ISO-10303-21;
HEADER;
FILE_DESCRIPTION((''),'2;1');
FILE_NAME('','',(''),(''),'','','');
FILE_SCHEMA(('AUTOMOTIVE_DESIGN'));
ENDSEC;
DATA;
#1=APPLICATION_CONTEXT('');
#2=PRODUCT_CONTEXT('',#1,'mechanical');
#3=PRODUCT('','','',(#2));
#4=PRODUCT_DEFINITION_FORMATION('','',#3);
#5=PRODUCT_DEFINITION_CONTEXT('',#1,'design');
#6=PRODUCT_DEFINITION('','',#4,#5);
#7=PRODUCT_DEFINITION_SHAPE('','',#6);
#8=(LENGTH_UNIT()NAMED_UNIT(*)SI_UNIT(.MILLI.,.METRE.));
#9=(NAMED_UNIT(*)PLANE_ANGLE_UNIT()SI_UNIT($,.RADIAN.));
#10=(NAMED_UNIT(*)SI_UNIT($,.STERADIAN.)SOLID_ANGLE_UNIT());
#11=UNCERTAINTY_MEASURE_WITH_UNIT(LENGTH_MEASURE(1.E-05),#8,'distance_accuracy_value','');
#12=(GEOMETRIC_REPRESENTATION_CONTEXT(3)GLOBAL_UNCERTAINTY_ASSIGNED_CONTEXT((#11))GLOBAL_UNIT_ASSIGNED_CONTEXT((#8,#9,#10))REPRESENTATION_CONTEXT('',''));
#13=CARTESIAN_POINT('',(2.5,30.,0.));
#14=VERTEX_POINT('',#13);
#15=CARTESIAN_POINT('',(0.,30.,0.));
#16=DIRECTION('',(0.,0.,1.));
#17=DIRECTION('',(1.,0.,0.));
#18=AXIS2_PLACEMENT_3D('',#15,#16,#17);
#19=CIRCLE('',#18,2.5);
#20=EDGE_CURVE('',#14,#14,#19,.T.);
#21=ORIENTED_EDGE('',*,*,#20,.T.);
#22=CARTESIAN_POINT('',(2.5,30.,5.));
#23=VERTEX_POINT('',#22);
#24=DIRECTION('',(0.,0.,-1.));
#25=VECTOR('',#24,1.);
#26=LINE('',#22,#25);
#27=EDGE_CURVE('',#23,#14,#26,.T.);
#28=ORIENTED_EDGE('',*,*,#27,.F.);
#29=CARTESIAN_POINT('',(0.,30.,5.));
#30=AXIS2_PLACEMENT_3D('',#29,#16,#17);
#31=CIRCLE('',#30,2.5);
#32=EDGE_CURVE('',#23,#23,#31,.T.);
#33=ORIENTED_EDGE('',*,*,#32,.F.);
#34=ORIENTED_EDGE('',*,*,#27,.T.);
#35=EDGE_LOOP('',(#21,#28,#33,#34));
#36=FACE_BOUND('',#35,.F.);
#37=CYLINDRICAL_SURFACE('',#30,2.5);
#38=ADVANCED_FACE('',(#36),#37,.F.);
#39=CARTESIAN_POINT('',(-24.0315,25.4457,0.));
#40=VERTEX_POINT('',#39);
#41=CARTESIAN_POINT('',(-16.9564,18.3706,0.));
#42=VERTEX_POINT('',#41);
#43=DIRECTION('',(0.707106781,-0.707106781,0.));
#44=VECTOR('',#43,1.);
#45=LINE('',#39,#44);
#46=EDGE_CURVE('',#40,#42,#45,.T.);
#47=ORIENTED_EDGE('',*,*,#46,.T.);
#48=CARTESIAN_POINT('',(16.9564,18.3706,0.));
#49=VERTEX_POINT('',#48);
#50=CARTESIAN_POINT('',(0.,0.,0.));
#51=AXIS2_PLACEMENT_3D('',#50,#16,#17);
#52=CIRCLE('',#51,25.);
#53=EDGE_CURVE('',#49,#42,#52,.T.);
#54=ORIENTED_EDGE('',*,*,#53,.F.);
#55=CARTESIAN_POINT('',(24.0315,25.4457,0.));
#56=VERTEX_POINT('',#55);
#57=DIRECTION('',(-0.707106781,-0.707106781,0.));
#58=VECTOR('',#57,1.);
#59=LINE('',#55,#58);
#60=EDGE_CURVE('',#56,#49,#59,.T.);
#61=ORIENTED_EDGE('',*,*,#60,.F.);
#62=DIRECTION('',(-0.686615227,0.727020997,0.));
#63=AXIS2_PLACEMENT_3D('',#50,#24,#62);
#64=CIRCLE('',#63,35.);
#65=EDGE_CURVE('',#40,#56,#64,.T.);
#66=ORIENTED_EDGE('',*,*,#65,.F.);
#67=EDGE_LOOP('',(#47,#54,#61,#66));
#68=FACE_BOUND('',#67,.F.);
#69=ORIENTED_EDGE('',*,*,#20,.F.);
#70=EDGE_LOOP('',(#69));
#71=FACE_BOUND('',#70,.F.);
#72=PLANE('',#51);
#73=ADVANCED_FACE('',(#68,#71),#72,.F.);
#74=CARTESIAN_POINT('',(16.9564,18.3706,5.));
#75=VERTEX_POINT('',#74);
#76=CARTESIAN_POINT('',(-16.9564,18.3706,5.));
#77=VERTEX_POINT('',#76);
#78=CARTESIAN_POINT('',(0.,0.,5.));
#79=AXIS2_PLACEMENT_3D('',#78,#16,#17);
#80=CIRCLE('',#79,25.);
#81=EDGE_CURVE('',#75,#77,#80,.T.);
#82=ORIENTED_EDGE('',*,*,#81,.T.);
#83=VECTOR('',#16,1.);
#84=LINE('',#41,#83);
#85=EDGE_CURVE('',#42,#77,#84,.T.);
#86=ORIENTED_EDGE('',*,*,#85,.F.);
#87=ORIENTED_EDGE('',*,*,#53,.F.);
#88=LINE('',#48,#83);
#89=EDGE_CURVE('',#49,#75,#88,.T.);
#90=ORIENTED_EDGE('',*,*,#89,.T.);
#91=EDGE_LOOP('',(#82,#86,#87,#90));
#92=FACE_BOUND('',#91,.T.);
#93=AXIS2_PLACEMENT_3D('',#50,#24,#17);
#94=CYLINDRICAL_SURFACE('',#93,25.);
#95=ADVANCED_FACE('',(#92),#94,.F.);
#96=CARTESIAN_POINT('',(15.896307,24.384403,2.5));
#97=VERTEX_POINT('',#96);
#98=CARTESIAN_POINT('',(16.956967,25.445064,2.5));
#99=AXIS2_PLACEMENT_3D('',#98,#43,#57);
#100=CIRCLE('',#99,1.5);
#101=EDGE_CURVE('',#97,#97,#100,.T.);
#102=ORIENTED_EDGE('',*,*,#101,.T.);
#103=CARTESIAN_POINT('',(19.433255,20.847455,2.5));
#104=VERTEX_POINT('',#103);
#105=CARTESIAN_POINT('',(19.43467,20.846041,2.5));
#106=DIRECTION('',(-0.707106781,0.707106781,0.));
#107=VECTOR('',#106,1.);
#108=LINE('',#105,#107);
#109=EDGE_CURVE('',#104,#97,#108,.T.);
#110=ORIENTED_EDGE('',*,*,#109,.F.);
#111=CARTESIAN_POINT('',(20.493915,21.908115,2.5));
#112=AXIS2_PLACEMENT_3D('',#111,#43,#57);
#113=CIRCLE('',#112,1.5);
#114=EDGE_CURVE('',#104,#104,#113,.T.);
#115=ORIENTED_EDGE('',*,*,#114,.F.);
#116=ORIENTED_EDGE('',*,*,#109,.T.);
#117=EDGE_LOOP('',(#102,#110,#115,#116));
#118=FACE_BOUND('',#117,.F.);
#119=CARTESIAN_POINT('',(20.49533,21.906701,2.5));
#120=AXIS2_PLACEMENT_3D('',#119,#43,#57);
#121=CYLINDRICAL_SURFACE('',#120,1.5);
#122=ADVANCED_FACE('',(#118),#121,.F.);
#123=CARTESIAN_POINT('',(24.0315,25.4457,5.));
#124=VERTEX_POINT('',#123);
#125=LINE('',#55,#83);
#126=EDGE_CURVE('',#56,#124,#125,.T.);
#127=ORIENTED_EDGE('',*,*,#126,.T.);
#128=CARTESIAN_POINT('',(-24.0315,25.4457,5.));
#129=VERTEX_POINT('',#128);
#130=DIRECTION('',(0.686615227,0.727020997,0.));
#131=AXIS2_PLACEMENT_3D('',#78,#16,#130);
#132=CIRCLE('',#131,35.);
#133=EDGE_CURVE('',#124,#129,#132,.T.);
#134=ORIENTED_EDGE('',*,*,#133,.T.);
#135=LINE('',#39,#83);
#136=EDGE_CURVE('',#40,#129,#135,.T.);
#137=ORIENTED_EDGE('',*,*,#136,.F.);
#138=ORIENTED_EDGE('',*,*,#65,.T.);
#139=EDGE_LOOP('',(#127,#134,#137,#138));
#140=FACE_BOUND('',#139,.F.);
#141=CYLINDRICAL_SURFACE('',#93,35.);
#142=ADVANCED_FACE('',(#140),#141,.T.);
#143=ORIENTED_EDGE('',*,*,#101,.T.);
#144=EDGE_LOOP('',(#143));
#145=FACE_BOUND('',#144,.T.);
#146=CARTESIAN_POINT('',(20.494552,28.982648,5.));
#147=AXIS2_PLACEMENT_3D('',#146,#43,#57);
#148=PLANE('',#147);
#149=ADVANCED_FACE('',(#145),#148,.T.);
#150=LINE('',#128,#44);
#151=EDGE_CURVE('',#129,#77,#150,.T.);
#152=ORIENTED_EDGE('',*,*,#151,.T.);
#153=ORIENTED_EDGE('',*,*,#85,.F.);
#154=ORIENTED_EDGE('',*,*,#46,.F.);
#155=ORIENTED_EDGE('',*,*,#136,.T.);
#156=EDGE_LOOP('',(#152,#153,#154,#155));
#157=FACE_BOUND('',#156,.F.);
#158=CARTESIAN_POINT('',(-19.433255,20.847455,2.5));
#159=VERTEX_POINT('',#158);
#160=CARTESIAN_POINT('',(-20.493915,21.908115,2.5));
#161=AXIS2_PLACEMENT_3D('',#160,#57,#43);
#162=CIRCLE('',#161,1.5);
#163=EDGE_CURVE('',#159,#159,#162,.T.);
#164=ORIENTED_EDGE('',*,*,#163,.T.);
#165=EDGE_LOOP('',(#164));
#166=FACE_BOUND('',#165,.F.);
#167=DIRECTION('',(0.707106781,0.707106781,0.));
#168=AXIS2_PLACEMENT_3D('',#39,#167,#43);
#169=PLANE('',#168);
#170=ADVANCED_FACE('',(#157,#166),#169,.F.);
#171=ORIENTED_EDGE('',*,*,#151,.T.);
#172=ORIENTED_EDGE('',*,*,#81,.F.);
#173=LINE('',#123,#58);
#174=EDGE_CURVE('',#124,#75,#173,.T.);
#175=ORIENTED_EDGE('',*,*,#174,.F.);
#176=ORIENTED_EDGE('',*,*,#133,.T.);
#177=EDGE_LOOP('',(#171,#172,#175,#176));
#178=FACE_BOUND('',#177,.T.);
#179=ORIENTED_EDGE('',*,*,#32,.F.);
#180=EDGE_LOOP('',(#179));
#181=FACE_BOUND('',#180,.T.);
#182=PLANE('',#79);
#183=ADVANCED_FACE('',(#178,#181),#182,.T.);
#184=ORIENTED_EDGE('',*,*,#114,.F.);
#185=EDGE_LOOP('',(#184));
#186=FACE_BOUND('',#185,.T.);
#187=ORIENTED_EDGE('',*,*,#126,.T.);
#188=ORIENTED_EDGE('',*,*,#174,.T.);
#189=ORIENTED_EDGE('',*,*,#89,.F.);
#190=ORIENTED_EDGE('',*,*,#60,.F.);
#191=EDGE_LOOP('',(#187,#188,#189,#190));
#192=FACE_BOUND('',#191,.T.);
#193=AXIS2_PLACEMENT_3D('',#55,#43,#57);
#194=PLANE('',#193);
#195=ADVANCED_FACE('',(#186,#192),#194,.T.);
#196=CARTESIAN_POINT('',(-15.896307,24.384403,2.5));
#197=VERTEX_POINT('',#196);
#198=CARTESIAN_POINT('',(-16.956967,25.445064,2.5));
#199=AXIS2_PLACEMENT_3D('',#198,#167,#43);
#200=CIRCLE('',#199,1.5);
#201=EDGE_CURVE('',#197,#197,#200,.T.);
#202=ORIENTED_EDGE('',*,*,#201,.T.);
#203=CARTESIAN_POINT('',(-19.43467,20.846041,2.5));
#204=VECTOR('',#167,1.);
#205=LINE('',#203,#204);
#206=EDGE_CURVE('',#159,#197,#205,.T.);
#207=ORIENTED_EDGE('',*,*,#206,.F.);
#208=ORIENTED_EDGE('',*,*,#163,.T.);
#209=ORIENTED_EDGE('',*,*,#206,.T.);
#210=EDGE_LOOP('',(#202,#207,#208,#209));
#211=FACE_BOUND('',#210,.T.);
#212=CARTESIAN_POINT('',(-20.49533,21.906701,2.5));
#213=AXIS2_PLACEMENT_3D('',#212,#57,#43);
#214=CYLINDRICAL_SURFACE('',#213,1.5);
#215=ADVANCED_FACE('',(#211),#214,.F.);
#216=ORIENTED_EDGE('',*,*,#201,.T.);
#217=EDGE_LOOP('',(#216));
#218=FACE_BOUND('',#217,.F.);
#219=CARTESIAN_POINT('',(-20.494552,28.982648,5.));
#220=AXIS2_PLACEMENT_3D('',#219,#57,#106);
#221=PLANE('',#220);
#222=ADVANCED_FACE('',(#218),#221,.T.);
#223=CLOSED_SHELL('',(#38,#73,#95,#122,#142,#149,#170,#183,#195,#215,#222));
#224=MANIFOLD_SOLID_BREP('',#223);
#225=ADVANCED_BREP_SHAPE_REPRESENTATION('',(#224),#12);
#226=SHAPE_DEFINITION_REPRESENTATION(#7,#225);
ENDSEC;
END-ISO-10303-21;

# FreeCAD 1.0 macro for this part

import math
import FreeCAD as App
import Part
import Sketcher
from FreeCAD import Vector
Q = App.Units.Quantity

doc = App.newDocument("Part")
params = doc.addObject("Spreadsheet::Sheet", "Params")
for row, (alias, value) in enumerate([
    ("sketch1_radius", "25 mm"),
    ("sketch1_radius2", "35 mm"),
    ("pad1_length", "5 mm"),
    ("sketch2_diameter", "3 mm"),
    ("pocket1_length", "5 mm"),
    ("sketch3_diameter", "5 mm"),
], start=1):
    params.set(f"A{row}", alias)
    params.set(f"B{row}", "=" + value)
    params.setAlias(f"B{row}", alias)

body = doc.addObject("PartDesign::Body", "Body")

sketch1 = body.newObject("Sketcher::SketchObject", "Sketch")
sketch1.AttachmentSupport = (doc.getObject("XY_Plane"), [""])
sketch1.MapMode = "FlatFace"
sketch1.addGeometry(Part.ArcOfCircle(Part.Circle(Vector(0, 0, 0), Vector(0, 0, 1), 25), math.radians(47), math.radians(133)), False)
sketch1.addGeometry(Part.LineSegment(Vector(17, 18, 0), Vector(24, 25, 0)), False)
sketch1.addGeometry(Part.ArcOfCircle(Part.Circle(Vector(0, 0, 0), Vector(0, 0, 1), 35), math.radians(47), math.radians(133)), False)
sketch1.addGeometry(Part.LineSegment(Vector(-24, 25, 0), Vector(-17, 18, 0)), False)
sketch1.addConstraint(Sketcher.Constraint("Coincident", 0, 1, 1, 1))
sketch1.addConstraint(Sketcher.Constraint("Coincident", 1, 2, 2, 1))
sketch1.addConstraint(Sketcher.Constraint("Coincident", 2, 2, 3, 1))
sketch1.addConstraint(Sketcher.Constraint("Coincident", 3, 2, 0, 2))
sketch1.addConstraint(Sketcher.Constraint("Coincident", 0, 3, -1, 1))
sketch1.addConstraint(Sketcher.Constraint("Coincident", 2, 3, -1, 1))
sketch1.addConstraint(Sketcher.Constraint("Perpendicular", 1, 3))
sketch1.addConstraint(Sketcher.Constraint("Horizontal", 1, 2, 2, 2))
sketch1.addConstraint(Sketcher.Constraint("Horizontal", 0, 1, 3, 2))
sketch1.addConstraint(Sketcher.Constraint("Radius", 0, Q("25 mm")))
sketch1.addConstraint(Sketcher.Constraint("Radius", 2, Q("35 mm")))
sketch1.addConstraint(Sketcher.Constraint("DistanceX", 2, 2, 0, 1, Q("40.988 mm")))
sketch1.setExpression("Constraints[9]", "Params.sketch1_radius")
sketch1.setExpression("Constraints[10]", "Params.sketch1_radius2")
pad1 = body.newObject("PartDesign::Pad", "Pad")
pad1.Profile = sketch1
pad1.setExpression("Length", "Params.pad1_length")

sketch2 = body.newObject("Sketcher::SketchObject", "Sketch001")
sketch2.Placement = App.Placement(Vector(24.0315, 25.4457, 5), App.Rotation(Vector(-0.707106781, -0.707106781, 0), Vector(0, 0, -0.999999999), Vector(0.707106781, -0.707106781, 0), "ZXY"))
sketch2.addGeometry(Part.Circle(Vector(5, 2.5, 0), Vector(0, 0, 1), 1.5), False)
sketch2.addConstraint(Sketcher.Constraint("Diameter", 0, Q("3 mm")))
sketch2.addConstraint(Sketcher.Constraint("DistanceY", -1, 1, 0, 3, Q("2.5 mm")))
sketch2.addConstraint(Sketcher.Constraint("DistanceX", -1, 1, 0, 3, Q("5.003 mm")))
sketch2.setExpression("Constraints[0]", "Params.sketch2_diameter")
pocket1 = body.newObject("PartDesign::Pocket", "Pocket")
pocket1.Profile = sketch2
pocket1.setExpression("Length", "Params.pocket1_length")

sketch3 = body.newObject("Sketcher::SketchObject", "Sketch002")
sketch3.AttachmentSupport = (doc.getObject("XY_Plane"), [""])
sketch3.MapMode = "FlatFace"
sketch3.AttachmentOffset = App.Placement(Vector(0, 0, 5), App.Rotation())
sketch3.addGeometry(Part.Circle(Vector(0, 30, 0), Vector(0, 0, 1), 2.5), False)
sketch3.addConstraint(Sketcher.Constraint("PointOnObject", 0, 3, -2))
sketch3.addConstraint(Sketcher.Constraint("Diameter", 0, Q("5 mm")))
sketch3.addConstraint(Sketcher.Constraint("DistanceY", -1, 1, 0, 3, Q("30 mm")))
sketch3.setExpression("Constraints[1]", "Params.sketch3_diameter")
pocket2 = body.newObject("PartDesign::Pocket", "Pocket001")
pocket2.Profile = sketch3
pocket2.Type = "ThroughAll"
doc.recompute()

mirrored = body.newObject("PartDesign::Mirrored", "Mirrored")
mirrored.Originals = [pocket1]
mirrored.MirrorPlane = (doc.getObject("YZ_Plane"), [""])
body.Tip = mirrored

doc.recompute()
